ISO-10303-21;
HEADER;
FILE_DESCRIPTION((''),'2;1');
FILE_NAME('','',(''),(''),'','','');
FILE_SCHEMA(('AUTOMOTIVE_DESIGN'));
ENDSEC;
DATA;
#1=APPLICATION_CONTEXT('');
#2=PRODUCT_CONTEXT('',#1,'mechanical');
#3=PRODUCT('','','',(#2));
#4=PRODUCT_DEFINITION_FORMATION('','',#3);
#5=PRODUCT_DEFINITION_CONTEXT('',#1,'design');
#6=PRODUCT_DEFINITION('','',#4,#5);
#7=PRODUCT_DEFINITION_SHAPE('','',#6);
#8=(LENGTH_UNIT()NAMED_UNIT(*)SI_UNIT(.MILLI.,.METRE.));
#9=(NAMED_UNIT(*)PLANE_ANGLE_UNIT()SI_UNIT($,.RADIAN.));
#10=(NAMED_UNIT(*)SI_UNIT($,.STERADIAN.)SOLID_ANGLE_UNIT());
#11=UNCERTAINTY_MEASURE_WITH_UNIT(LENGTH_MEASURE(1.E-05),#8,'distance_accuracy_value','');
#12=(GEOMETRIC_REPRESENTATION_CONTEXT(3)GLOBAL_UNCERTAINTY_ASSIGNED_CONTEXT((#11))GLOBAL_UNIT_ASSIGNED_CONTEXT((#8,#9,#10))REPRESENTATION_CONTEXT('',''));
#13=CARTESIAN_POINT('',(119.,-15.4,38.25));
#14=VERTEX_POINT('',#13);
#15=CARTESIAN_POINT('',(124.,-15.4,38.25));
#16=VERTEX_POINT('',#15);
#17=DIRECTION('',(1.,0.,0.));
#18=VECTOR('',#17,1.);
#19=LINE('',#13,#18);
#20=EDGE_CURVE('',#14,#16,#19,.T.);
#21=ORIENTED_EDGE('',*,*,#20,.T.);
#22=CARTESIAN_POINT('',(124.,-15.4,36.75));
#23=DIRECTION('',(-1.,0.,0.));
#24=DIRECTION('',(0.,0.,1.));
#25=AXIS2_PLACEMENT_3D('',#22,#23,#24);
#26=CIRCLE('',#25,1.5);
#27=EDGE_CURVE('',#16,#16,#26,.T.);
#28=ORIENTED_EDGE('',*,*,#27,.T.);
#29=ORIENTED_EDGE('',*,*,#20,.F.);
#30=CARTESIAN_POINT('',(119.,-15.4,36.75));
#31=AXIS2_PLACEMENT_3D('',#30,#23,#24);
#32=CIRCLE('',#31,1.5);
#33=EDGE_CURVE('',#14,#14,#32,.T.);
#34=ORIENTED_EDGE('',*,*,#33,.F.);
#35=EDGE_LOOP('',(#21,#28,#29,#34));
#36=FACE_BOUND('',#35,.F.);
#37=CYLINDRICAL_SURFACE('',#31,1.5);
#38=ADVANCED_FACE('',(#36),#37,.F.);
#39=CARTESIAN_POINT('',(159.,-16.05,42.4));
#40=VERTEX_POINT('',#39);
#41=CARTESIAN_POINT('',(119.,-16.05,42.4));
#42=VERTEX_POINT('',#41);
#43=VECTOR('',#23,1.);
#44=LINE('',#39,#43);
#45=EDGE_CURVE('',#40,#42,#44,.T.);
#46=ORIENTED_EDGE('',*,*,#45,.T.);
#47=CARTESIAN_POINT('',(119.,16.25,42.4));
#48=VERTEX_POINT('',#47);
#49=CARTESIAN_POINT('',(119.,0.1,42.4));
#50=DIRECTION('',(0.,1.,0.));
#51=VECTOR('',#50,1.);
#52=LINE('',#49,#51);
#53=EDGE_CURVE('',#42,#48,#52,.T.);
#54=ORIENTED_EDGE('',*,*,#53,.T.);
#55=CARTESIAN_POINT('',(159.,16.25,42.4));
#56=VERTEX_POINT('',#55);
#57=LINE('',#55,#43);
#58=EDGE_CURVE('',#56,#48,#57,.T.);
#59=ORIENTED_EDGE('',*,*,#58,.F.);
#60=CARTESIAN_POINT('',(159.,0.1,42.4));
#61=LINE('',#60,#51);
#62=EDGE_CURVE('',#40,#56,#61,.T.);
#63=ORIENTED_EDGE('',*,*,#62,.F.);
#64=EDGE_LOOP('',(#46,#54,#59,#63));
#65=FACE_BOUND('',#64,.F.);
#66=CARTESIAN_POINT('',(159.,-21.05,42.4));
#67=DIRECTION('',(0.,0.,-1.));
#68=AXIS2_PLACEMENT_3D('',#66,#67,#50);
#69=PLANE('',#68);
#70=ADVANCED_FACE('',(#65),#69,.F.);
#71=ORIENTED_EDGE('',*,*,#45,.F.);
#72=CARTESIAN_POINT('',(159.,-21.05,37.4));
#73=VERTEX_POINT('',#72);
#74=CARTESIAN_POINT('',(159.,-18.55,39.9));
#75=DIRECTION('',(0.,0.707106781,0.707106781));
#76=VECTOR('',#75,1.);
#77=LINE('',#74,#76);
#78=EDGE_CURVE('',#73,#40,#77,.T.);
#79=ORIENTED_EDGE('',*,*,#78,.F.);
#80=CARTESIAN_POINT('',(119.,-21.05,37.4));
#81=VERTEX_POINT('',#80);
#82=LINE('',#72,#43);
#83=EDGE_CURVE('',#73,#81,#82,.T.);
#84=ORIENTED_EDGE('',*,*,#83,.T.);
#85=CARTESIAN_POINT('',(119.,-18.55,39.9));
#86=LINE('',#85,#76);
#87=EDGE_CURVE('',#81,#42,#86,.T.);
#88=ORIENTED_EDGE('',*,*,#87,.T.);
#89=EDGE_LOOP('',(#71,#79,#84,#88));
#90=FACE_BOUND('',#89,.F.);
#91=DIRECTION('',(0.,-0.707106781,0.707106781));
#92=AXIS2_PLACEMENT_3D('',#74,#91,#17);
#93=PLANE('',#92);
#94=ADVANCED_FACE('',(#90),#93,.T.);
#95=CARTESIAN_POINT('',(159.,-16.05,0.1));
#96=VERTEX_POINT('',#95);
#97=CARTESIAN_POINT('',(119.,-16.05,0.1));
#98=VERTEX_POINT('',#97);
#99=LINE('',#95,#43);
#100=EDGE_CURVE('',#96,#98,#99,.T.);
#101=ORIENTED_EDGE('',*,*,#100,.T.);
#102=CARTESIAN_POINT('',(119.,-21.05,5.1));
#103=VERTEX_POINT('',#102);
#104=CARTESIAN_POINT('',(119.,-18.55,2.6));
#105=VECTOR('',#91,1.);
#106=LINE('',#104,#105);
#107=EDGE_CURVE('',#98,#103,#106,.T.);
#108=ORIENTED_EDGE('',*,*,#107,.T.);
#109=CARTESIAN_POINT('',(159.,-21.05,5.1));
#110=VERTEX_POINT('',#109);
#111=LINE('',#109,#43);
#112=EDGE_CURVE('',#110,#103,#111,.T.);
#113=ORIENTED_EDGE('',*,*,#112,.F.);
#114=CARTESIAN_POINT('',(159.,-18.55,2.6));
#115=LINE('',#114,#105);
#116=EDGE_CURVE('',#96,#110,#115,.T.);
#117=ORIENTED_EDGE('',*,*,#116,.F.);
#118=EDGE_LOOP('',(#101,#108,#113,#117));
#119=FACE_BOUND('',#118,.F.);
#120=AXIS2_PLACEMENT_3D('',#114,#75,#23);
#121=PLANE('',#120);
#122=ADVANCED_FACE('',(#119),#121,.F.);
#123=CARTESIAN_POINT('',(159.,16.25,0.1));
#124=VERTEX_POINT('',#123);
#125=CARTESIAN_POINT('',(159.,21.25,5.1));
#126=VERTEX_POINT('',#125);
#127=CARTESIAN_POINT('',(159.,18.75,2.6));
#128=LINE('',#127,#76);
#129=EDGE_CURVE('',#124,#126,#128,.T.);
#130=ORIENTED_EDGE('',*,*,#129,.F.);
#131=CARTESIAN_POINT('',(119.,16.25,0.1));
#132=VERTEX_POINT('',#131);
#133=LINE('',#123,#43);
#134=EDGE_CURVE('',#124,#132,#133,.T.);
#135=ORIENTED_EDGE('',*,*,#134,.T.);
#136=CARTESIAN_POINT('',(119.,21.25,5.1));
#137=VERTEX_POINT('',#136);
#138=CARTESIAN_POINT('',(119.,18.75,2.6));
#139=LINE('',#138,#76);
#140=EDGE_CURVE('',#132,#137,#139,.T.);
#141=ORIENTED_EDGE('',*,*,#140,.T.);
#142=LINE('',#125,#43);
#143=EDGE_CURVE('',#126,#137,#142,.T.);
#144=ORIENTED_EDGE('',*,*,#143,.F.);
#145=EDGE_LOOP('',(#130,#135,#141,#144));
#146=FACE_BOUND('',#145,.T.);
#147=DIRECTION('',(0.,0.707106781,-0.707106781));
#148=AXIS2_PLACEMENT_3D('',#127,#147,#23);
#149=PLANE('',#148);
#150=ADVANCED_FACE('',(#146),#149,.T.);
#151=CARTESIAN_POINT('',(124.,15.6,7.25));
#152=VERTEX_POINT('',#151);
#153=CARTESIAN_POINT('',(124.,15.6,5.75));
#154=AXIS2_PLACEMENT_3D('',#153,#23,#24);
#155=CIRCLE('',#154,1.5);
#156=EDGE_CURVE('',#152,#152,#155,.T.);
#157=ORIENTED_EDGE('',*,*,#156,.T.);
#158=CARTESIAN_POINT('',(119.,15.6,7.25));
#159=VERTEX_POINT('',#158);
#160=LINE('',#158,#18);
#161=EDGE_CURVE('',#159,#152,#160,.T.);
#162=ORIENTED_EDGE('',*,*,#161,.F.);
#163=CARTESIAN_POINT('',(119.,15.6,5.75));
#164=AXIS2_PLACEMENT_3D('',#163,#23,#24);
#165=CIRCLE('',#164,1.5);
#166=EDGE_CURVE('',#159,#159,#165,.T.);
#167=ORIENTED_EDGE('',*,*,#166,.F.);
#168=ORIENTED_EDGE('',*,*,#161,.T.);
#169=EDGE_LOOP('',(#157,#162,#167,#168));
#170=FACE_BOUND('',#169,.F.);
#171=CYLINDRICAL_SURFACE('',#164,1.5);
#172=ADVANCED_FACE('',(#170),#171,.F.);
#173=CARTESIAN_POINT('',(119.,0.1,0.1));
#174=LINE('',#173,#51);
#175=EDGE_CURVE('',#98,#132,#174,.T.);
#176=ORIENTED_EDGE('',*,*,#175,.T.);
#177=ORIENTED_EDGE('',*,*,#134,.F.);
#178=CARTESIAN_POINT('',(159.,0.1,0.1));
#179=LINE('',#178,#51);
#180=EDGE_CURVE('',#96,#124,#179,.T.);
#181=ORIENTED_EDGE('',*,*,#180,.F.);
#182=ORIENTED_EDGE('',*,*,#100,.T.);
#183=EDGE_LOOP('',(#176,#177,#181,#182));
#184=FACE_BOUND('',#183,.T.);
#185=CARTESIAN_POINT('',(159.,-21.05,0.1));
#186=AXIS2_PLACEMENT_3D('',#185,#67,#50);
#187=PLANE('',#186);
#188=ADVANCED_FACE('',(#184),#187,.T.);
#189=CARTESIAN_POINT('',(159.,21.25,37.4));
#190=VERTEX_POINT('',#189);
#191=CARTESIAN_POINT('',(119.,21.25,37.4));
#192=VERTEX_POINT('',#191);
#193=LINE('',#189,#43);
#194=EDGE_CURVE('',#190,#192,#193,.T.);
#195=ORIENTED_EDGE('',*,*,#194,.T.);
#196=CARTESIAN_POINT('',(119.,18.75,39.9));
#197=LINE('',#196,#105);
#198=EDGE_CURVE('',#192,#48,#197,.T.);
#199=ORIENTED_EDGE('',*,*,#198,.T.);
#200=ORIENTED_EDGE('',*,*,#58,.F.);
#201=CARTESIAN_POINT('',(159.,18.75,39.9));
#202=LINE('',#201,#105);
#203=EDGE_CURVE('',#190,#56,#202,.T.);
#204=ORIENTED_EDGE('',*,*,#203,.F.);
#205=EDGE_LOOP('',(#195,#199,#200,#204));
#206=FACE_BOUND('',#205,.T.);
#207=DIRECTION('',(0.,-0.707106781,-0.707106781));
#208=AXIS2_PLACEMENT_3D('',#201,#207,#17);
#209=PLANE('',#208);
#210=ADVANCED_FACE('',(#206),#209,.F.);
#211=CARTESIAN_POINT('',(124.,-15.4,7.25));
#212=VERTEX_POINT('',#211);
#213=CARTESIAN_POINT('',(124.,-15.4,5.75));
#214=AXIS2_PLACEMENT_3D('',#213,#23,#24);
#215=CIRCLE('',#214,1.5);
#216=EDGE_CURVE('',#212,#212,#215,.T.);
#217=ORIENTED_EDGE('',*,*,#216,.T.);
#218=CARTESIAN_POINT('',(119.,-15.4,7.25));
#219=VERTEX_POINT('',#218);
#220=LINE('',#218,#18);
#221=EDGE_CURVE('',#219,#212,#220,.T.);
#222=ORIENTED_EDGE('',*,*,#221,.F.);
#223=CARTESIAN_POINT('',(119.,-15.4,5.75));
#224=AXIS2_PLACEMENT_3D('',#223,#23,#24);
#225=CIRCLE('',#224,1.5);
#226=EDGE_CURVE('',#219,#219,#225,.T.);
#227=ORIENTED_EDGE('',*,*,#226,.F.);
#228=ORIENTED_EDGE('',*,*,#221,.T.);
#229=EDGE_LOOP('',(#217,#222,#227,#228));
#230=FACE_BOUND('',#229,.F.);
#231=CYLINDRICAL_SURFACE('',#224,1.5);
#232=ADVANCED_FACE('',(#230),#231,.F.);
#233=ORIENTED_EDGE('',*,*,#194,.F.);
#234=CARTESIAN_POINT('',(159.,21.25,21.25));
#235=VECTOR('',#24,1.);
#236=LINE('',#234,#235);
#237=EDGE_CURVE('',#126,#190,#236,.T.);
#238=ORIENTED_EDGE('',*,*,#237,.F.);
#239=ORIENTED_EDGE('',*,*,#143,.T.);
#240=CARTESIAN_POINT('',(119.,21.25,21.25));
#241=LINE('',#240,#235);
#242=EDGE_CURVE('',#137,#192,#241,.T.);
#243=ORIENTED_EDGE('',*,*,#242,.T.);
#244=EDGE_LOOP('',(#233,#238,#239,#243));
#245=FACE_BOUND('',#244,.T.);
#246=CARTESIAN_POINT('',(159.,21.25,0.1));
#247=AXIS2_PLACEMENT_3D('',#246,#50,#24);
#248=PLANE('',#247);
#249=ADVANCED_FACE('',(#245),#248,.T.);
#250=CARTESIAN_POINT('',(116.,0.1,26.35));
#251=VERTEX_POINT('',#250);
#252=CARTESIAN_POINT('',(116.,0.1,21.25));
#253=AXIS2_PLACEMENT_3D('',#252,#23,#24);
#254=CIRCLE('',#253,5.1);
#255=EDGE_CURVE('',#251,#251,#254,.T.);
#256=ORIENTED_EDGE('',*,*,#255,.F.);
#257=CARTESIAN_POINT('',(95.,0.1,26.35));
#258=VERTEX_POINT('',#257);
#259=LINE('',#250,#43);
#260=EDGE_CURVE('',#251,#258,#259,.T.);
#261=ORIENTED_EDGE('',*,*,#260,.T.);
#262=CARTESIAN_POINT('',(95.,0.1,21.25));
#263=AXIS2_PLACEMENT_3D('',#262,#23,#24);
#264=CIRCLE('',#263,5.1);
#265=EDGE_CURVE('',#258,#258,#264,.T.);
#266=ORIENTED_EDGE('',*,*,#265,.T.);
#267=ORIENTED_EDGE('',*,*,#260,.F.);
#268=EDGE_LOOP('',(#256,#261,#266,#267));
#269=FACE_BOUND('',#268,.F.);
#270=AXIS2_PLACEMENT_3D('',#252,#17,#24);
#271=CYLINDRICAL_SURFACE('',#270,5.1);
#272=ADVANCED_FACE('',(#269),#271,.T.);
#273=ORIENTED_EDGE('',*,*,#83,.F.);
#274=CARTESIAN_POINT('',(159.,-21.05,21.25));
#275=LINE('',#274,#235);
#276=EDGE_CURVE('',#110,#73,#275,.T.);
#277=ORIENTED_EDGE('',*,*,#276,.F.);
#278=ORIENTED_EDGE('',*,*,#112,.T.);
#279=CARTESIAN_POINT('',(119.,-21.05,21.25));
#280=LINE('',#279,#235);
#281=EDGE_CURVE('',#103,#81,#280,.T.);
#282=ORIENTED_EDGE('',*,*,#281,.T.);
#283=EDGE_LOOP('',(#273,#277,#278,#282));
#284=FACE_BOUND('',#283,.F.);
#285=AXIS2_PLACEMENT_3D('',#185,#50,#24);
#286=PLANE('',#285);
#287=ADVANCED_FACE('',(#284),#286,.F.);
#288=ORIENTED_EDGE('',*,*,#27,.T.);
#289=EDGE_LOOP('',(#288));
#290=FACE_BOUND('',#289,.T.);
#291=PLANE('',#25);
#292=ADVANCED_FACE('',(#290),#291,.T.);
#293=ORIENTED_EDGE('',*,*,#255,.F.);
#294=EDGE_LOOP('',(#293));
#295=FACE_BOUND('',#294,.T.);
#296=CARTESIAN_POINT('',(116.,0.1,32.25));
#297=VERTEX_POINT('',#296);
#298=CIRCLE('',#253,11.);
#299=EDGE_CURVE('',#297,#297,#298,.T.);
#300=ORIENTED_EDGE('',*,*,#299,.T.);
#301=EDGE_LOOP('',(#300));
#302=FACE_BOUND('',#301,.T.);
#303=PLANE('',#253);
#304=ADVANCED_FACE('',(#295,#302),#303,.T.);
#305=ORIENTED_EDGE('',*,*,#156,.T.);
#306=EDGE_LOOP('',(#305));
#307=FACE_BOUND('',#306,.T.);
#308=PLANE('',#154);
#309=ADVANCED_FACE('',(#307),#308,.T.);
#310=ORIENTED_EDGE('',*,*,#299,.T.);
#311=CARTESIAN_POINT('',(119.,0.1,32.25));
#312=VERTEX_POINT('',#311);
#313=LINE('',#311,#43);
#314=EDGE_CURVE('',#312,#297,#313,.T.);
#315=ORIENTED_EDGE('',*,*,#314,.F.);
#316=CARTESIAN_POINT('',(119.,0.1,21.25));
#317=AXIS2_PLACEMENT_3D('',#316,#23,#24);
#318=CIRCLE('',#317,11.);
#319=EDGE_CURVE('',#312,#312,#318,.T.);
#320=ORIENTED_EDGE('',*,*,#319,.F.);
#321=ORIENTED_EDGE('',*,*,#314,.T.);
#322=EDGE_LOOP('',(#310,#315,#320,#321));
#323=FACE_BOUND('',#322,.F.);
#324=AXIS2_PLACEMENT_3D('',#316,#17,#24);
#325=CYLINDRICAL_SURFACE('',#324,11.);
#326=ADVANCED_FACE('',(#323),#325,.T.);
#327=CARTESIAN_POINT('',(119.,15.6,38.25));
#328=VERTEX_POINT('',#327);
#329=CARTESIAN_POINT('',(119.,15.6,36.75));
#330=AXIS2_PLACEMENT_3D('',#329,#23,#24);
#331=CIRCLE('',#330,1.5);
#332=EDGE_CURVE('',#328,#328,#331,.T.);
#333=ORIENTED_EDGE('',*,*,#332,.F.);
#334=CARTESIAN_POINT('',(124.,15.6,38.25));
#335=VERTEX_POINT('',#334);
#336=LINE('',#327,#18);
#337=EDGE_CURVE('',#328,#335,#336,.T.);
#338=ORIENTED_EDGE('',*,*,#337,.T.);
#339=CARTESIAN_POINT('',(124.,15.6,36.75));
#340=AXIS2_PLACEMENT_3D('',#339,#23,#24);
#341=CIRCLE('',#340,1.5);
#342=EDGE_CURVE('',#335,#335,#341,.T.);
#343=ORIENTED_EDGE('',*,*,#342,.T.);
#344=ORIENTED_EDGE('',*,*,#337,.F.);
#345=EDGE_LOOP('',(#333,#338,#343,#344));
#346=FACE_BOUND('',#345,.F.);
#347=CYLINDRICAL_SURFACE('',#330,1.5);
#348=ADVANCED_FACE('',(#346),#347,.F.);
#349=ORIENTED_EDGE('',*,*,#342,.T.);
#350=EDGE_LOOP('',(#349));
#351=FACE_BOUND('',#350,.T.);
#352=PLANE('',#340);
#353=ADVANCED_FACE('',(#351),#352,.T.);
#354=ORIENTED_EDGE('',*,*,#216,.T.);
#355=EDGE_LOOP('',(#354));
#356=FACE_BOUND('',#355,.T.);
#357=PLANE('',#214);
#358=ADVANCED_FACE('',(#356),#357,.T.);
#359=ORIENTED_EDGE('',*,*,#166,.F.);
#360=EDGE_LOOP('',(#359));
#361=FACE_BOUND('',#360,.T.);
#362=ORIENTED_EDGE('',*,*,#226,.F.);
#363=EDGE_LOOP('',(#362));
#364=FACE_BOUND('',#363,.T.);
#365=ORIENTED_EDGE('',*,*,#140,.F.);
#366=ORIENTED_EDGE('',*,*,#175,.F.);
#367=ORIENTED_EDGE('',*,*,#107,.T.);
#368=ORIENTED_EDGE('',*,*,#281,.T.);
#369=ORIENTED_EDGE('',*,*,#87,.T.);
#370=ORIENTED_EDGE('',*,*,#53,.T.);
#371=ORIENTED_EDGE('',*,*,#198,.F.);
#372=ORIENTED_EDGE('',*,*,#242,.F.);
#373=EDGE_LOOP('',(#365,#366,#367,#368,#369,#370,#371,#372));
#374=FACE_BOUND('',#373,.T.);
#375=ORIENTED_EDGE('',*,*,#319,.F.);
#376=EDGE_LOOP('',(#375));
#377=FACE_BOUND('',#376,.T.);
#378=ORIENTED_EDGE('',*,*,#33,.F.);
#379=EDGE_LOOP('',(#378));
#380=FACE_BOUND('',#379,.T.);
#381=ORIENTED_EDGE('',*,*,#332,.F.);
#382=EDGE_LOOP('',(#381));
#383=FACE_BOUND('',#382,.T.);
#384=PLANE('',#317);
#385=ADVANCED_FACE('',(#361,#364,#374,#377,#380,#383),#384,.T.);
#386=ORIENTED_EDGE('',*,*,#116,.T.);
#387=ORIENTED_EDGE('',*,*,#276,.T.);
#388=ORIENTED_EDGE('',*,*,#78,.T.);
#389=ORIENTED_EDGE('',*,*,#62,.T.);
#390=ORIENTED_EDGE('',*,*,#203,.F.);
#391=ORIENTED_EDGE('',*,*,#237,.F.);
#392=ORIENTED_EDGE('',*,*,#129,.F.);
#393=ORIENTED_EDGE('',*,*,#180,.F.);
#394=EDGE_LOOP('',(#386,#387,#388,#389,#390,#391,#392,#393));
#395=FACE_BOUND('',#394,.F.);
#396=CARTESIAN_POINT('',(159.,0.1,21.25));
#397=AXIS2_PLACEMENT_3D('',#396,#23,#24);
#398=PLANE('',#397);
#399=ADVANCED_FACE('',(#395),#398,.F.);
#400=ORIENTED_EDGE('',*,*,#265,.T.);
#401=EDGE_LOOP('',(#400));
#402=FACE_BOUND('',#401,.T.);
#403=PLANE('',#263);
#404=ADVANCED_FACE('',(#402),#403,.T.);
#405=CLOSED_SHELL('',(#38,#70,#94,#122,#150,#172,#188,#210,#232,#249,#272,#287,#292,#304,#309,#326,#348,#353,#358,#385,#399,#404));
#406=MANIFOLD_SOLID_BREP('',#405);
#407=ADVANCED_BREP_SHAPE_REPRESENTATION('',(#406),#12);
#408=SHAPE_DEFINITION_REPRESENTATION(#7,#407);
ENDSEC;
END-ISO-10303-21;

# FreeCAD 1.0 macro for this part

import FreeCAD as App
import Part
import Sketcher


def edges_at(feature, points):
    """Names of the edges that pass closest to the given points."""
    edges = feature.Shape.Edges
    near = lambda p: min(range(len(edges)), key=lambda i: edges[i].distToShape(Part.Vertex(*p))[0])
    return sorted({f"Edge{near(p) + 1}" for p in points})


def add_polygon(sketch, points):
    """Adds a closed chain of lines whose ends are joined by coincident constraints."""
    first, n = sketch.GeometryCount, len(points)
    for a, b in zip(points, points[1:] + points[:1]):
        sketch.addGeometry(Part.LineSegment(App.Vector(*a, 0), App.Vector(*b, 0)), False)
    for i in range(n):
        sketch.addConstraint(Sketcher.Constraint("Coincident", first + i, 2, first + (i + 1) % n, 1))

doc = App.newDocument("Part")
body = doc.addObject("PartDesign::Body", "Body")

sketch1 = body.newObject("Sketcher::SketchObject", "Sketch")
sketch1.AttachmentSupport = (doc.getObject("XY_Plane"), [""])
sketch1.MapMode = "FlatFace"
add_polygon(sketch1, [(-21.15, 21.15), (-21.15, -21.15), (21.15, -21.15), (21.15, 21.15)])
sketch1.addConstraint([
    Sketcher.Constraint("Vertical", 0),
    Sketcher.Constraint("Horizontal", 1),
    Sketcher.Constraint("Vertical", 2),
    Sketcher.Constraint("Horizontal", 3),
    Sketcher.Constraint("Symmetric", 0, 2, 2, 2, -1, 1),
    Sketcher.Constraint("Equal", 3, 0),
    Sketcher.Constraint("DistanceX", 1, 1, 1, 2, 42.3),
])
pad1 = body.newObject("PartDesign::Pad", "Pad")
pad1.Profile = sketch1
pad1.Length = 40

sketch2 = body.newObject("Sketcher::SketchObject", "Sketch001")
sketch2.AttachmentSupport = (doc.getObject("XY_Plane"), [""])
sketch2.MapMode = "FlatFace"
sketch2.AttachmentOffset = App.Placement(App.Vector(0, 0, 40), App.Rotation())
sketch2.addGeometry(Part.Circle(App.Vector(0, 0, 0), App.Vector(0, 0, 1), 11), False)
sketch2.addConstraint([
    Sketcher.Constraint("Coincident", 0, 3, -1, 1),
    Sketcher.Constraint("Diameter", 0, 22.0),
])
pad2 = body.newObject("PartDesign::Pad", "Pad001")
pad2.Profile = sketch2
pad2.Length = 3

sketch3 = body.newObject("Sketcher::SketchObject", "Sketch002")
sketch3.AttachmentSupport = (doc.getObject("XY_Plane"), [""])
sketch3.MapMode = "FlatFace"
sketch3.AttachmentOffset = App.Placement(App.Vector(0, 0, 43), App.Rotation())
sketch3.addGeometry(Part.Circle(App.Vector(0, 0, 0), App.Vector(0, 0, 1), 5.1), False)
sketch3.addConstraint([
    Sketcher.Constraint("Coincident", 0, 3, -1, 1),
    Sketcher.Constraint("Diameter", 0, 10.2),
])
pad3 = body.newObject("PartDesign::Pad", "Pad002")
pad3.Profile = sketch3
pad3.Length = 21

sketch4 = body.newObject("Sketcher::SketchObject", "Sketch003")
sketch4.AttachmentSupport = (doc.getObject("XY_Plane"), [""])
sketch4.MapMode = "FlatFace"
sketch4.AttachmentOffset = App.Placement(App.Vector(0, 0, 40), App.Rotation())
sketch4.addGeometry([
    Part.Circle(App.Vector(-15.5, 15.5, 0), App.Vector(0, 0, 1), 1.5),
    Part.Circle(App.Vector(15.5, 15.5, 0), App.Vector(0, 0, 1), 1.5),
    Part.Circle(App.Vector(15.5, -15.5, 0), App.Vector(0, 0, 1), 1.5),
    Part.Circle(App.Vector(-15.5, -15.5, 0), App.Vector(0, 0, 1), 1.5),
], False)
sketch4.addConstraint([
    Sketcher.Constraint("Equal", 0, 1),
    Sketcher.Constraint("Equal", 1, 2),
    Sketcher.Constraint("Equal", 2, 3),
    Sketcher.Constraint("Symmetric", 0, 3, 2, 3, -1, 1),
    Sketcher.Constraint("Symmetric", 1, 3, 3, 3, -1, 1),
    Sketcher.Constraint("Symmetric", 0, 3, 1, 3, -2),
    Sketcher.Constraint("Diameter", 0, 3.0),
    Sketcher.Constraint("DistanceX", 0, 3, 1, 3, 31.0),
    Sketcher.Constraint("DistanceY", 2, 3, 1, 3, 31.0),
])
pocket1 = body.newObject("PartDesign::Pocket", "Pocket")
pocket1.Profile = sketch4
pocket1.Length = 5
doc.recompute()

chamfer = body.newObject("PartDesign::Chamfer", "Chamfer")
chamfer.Base = (pocket1, edges_at(pocket1, [
    (21.15, 21.15, 20),
    (21.15, -21.15, 20),
    (-21.15, 21.15, 20),
    (-21.15, -21.15, 20),
]))
chamfer.Size = 5
body2 = doc.addObject("PartDesign::Body", "Body001")
doc.recompute()

body.Placement = App.Placement(App.Vector(159, 0.1, 21.25), App.Rotation(App.Vector(0, -1, 0), 90))
boolean = body2.newObject("PartDesign::Boolean", "Boolean")
boolean.Type = "Fuse"
boolean.addObjects([body])

doc.recompute()
